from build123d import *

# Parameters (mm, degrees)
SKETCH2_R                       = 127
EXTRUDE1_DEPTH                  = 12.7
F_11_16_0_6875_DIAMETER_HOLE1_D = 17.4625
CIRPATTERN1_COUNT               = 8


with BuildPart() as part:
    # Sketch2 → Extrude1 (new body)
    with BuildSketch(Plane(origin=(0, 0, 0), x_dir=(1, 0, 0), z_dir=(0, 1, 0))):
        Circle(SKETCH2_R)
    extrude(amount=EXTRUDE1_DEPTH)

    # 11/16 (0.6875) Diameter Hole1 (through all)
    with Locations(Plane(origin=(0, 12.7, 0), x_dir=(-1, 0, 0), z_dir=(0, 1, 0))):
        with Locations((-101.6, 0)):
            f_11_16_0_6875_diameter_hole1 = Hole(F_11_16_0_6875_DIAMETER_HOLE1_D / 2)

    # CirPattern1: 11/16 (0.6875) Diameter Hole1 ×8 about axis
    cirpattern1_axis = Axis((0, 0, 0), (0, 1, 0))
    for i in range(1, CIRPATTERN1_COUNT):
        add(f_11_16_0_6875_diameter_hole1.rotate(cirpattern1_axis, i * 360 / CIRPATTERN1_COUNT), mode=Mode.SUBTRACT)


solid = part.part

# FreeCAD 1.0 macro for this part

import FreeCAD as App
import Part
import Sketcher

V = App.Vector
Q = App.Units.Quantity

doc = App.newDocument("Part")
body = doc.addObject("PartDesign::Body", "Body")

sketch1 = doc.addObject("Sketcher::SketchObject", "Sketch")
body.addObject(sketch1)
sketch1.AttachmentSupport = (doc.XZ_Plane, [""])
sketch1.MapMode = "FlatFace"
sketch1.addGeometry(Part.Circle(V(0, 0, 0), V(0, 0, 1), 127), False)
sketch1.addConstraint(Sketcher.Constraint("Coincident", 0, 3, -1, 1))
sketch1.addConstraint(Sketcher.Constraint("Diameter", 0, Q("10 in")))
pad1 = doc.addObject("PartDesign::Pad", "Pad")
body.addObject(pad1)
pad1.Profile = sketch1
pad1.Length = Q("0.5 in")
pad1.Reversed = True

sketch2 = doc.addObject("Sketcher::SketchObject", "Sketch001")
body.addObject(sketch2)
sketch2.AttachmentSupport = (doc.XZ_Plane, [""])
sketch2.MapMode = "FlatFace"
sketch2.AttachmentOffset = App.Placement(V(0, 0, -0.5 * 25.4), App.Rotation())
sketch2.addGeometry(Part.Circle(V(102, 0, 0), V(0, 0, 1), 9), False)
sketch2.addConstraint(Sketcher.Constraint("PointOnObject", 0, 3, -1))
sketch2.addConstraint(Sketcher.Constraint("Diameter", 0, Q("0.6875 in")))
sketch2.addConstraint(Sketcher.Constraint("DistanceX", -1, 1, 0, 3, Q("4 in")))
doc.recompute()
hole = doc.addObject("PartDesign::Hole", "Hole")
body.addObject(hole)
hole.Profile = sketch2
hole.ThreadType = "None"
hole.Diameter = Q("0.6875 in")
hole.DepthType = "ThroughAll"
hole.Reversed = True
doc.recompute()

polarpattern = doc.addObject("PartDesign::PolarPattern", "PolarPattern")
body.addObject(polarpattern)
polarpattern.Originals = [hole]
polarpattern.Axis = (doc.Y_Axis, [""])
polarpattern.Angle = 360
polarpattern.Occurrences = 8
body.Tip = polarpattern

doc.recompute()
